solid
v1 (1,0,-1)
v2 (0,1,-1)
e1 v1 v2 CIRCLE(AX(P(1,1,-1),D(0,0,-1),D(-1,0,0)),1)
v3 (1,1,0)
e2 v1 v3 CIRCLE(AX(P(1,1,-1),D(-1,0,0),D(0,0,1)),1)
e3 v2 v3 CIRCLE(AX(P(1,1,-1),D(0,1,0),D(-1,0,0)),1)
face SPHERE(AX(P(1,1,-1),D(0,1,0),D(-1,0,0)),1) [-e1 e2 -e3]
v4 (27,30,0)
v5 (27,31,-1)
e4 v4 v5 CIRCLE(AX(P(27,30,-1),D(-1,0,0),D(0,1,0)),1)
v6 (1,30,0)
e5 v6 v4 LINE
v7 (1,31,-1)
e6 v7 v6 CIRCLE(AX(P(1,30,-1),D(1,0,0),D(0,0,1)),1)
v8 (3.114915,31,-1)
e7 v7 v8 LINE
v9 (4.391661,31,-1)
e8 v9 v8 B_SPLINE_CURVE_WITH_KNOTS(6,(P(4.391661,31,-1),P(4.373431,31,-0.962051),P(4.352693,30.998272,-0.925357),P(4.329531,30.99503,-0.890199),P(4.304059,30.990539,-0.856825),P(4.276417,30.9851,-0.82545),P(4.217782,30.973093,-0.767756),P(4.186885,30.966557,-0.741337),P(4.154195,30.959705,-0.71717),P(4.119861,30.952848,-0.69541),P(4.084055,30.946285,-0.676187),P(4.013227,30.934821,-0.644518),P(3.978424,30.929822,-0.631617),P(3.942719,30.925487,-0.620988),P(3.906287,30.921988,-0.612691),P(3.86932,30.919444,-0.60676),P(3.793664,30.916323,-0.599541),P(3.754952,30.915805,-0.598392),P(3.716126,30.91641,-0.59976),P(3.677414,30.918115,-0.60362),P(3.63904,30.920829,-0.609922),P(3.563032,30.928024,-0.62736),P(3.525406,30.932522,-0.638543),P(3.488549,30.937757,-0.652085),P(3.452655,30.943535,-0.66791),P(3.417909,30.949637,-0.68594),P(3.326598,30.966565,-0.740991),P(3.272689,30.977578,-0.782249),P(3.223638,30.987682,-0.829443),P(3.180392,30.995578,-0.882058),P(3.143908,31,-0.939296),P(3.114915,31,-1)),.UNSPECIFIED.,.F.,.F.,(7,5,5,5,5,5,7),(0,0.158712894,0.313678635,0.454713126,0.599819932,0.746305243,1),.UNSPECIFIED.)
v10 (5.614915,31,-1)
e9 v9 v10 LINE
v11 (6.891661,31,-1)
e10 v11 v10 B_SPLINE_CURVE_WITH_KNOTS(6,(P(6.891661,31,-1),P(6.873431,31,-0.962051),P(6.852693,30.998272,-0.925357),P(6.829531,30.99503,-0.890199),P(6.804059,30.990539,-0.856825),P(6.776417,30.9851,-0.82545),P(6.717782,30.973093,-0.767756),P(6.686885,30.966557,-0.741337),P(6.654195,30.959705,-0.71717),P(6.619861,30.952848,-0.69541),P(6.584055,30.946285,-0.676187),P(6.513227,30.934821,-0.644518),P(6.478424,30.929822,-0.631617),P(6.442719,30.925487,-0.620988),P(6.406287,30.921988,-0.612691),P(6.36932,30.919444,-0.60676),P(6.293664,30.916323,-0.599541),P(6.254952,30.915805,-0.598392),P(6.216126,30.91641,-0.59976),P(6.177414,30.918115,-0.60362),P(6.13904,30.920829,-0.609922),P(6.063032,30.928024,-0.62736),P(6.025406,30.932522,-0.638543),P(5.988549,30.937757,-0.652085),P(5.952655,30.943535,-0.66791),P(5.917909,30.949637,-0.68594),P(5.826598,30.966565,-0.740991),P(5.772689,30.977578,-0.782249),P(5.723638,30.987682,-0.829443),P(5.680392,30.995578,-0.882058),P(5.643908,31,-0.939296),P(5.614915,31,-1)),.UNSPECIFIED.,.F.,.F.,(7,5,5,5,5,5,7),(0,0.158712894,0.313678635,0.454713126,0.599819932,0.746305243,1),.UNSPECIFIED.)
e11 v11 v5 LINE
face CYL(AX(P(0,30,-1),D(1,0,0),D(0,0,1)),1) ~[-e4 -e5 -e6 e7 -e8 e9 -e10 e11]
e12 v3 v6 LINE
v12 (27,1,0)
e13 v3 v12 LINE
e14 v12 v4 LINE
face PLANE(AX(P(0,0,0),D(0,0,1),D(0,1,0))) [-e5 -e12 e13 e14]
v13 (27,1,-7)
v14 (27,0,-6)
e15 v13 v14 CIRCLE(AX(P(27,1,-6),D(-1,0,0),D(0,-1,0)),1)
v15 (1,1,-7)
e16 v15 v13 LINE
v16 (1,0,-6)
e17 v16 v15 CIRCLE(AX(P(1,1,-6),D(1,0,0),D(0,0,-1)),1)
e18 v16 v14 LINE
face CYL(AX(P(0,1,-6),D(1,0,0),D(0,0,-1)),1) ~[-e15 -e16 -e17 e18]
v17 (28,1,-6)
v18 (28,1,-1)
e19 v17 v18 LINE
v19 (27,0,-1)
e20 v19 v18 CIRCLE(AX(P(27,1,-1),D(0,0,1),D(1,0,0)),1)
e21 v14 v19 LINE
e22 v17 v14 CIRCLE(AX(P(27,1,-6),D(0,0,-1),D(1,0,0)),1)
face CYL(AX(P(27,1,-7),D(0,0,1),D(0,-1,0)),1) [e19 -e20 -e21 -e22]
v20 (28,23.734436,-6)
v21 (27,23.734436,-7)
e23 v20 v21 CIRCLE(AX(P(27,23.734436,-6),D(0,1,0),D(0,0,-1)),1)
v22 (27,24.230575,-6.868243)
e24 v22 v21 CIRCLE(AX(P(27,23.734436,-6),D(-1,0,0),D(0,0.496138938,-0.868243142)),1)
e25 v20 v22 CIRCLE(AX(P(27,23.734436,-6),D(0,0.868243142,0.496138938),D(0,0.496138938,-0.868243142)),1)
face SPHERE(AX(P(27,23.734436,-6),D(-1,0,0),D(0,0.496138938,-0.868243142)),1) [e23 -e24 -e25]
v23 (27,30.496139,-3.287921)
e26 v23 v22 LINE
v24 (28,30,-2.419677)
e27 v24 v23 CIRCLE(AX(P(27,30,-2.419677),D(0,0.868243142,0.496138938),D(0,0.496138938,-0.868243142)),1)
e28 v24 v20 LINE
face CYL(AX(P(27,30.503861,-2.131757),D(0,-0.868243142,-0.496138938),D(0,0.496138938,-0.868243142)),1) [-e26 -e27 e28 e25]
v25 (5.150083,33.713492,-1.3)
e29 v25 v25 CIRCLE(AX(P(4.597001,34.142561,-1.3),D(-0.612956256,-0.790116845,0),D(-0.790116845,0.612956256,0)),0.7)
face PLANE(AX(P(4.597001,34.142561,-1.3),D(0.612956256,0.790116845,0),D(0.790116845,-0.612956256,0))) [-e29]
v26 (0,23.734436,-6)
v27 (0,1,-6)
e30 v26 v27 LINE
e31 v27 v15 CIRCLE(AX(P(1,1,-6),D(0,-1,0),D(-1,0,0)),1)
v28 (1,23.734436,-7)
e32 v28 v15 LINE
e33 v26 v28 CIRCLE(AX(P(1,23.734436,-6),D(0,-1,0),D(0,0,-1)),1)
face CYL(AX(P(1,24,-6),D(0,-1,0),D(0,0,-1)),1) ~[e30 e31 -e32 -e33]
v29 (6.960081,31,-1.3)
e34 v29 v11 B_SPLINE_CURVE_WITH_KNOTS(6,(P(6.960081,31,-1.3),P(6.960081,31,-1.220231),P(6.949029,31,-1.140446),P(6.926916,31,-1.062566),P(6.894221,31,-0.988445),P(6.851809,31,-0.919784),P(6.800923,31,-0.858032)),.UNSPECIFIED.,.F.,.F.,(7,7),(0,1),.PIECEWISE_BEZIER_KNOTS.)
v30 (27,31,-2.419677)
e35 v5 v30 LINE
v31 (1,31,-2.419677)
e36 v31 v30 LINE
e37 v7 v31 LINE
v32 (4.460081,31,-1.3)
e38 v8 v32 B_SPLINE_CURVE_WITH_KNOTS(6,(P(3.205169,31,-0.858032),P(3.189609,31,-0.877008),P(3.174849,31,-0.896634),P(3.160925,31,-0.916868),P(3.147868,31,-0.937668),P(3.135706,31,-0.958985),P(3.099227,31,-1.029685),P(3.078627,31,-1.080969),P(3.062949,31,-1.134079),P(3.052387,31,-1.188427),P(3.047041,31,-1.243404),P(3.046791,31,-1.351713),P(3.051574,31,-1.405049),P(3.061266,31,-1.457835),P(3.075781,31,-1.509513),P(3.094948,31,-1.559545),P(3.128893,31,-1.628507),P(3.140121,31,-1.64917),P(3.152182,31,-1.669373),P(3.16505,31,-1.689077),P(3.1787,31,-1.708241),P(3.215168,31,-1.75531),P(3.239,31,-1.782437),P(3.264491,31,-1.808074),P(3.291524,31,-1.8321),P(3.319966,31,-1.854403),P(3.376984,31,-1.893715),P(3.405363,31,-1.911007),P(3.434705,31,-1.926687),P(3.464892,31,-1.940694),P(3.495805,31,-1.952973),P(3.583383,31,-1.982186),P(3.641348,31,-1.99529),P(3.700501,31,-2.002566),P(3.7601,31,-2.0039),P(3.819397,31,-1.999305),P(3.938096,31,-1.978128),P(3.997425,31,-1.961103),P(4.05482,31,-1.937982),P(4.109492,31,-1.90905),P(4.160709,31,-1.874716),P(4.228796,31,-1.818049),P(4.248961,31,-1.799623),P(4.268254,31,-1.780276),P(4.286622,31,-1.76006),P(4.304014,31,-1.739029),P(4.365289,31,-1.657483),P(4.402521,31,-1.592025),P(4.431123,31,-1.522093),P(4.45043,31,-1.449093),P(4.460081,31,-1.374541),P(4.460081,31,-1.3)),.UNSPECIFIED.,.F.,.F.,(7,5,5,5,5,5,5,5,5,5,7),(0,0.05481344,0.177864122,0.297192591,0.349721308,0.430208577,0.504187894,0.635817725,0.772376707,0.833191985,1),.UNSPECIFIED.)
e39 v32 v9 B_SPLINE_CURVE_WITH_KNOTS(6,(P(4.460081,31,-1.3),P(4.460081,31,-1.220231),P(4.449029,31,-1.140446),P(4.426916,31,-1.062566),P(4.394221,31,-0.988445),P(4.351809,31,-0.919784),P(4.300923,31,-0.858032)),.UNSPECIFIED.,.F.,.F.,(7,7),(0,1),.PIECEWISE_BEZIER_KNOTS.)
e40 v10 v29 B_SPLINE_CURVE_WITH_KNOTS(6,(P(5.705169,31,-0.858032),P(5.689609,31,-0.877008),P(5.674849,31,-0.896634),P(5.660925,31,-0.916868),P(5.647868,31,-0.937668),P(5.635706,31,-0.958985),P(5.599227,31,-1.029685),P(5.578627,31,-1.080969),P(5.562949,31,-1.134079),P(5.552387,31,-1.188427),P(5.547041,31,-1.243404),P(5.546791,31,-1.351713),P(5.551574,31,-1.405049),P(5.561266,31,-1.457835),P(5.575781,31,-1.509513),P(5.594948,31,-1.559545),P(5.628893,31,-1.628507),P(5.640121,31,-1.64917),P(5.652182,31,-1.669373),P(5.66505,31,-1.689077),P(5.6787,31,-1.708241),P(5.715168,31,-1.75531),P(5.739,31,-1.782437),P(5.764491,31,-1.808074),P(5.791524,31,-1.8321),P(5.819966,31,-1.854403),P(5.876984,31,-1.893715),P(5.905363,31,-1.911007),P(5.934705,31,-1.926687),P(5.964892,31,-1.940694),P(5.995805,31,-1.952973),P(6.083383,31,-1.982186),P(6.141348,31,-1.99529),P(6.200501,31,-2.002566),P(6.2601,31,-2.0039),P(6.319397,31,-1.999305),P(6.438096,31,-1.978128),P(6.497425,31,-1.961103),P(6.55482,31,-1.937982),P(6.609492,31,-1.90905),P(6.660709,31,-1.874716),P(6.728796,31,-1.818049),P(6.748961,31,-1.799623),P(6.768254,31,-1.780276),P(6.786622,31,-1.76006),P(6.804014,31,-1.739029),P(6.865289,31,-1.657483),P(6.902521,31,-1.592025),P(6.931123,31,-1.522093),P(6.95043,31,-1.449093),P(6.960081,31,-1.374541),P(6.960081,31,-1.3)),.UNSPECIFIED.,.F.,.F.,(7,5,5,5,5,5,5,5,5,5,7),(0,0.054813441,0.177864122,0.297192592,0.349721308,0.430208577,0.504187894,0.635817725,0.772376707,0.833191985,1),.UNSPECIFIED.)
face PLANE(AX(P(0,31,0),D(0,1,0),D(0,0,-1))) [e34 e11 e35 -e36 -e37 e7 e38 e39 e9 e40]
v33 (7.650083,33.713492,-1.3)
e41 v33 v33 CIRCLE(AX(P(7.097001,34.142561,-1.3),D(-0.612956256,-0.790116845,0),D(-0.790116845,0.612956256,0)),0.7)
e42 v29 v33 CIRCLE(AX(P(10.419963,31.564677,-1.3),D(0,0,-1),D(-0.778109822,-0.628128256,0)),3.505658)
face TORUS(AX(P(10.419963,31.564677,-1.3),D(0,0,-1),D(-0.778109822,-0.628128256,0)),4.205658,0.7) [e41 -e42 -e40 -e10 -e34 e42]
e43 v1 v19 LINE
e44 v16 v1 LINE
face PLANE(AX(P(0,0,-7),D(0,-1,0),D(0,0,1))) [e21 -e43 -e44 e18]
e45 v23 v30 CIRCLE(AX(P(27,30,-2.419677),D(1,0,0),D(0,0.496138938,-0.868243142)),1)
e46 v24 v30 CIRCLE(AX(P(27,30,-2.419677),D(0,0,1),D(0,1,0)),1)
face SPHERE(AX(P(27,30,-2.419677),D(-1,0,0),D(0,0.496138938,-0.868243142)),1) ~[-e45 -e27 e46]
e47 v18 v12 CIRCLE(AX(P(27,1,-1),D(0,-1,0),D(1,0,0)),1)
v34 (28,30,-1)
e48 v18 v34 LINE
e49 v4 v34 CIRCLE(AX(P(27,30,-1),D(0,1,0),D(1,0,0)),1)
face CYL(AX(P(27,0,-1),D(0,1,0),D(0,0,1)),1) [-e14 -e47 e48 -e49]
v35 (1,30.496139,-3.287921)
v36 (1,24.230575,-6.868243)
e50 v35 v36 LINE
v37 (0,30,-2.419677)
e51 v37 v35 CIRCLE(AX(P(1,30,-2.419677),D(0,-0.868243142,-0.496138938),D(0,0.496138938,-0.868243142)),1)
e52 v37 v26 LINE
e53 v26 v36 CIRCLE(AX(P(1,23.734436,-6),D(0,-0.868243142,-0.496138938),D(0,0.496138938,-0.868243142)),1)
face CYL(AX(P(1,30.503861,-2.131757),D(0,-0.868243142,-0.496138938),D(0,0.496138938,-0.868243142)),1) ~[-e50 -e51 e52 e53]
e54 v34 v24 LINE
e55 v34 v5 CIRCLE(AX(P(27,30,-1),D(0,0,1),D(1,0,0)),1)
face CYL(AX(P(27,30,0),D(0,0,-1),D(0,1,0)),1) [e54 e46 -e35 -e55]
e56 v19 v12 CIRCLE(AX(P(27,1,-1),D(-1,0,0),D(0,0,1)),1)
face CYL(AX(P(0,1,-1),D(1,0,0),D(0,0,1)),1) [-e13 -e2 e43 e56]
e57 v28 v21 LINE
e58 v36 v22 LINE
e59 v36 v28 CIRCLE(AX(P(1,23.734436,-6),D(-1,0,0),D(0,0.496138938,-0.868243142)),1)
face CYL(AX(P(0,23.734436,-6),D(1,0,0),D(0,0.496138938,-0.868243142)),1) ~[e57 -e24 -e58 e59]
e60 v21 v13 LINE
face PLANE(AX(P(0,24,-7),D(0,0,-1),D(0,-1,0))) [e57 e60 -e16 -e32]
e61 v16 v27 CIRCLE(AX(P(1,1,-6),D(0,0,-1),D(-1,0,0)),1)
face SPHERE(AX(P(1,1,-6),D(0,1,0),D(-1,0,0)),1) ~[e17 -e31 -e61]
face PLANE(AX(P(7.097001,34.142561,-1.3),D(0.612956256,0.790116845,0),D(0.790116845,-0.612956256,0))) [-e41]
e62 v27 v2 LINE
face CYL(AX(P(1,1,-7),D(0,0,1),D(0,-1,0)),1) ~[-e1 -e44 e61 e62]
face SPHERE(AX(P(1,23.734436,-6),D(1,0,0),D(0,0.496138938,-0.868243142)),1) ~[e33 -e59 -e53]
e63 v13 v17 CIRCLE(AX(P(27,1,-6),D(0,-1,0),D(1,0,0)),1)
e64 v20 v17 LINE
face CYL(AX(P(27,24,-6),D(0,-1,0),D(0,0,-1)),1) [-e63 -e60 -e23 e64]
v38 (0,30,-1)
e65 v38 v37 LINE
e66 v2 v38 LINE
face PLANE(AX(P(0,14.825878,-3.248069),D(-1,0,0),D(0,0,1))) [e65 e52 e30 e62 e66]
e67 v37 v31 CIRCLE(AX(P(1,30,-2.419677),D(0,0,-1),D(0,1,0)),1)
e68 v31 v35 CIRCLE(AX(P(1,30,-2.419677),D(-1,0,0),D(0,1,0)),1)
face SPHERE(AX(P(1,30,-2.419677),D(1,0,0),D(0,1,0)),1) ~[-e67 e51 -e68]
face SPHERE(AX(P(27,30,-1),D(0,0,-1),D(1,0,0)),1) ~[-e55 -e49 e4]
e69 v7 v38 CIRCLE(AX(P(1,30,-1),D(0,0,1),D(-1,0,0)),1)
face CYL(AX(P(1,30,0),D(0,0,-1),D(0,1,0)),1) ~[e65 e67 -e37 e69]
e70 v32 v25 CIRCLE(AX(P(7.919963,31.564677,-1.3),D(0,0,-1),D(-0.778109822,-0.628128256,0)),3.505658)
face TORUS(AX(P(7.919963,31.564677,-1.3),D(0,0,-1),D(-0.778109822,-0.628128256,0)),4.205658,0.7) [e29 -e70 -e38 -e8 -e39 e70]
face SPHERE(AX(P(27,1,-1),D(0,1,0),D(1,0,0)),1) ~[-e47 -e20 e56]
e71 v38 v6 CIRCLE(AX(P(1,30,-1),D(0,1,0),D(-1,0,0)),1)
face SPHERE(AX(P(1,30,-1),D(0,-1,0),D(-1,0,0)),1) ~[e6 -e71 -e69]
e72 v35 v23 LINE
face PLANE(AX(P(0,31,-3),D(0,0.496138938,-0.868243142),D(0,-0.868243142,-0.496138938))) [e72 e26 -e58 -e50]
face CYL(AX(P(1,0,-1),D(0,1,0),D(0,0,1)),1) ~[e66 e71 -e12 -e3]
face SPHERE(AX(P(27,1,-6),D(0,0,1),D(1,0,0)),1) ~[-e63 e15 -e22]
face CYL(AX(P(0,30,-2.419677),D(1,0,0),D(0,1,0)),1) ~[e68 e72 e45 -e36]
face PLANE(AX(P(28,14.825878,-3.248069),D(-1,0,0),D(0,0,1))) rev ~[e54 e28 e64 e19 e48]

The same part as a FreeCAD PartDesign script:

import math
import FreeCAD as App
import Part
import Sketcher
from FreeCAD import Vector
Q = App.Units.Quantity


def add_polygon(sketch, points):
    """Adds a closed chain of lines whose ends are joined by coincident constraints."""
    first, n = sketch.GeometryCount, len(points)
    for a, b in zip(points, points[1:] + points[:1]):
        sketch.addGeometry(Part.LineSegment(App.Vector(*a, 0), App.Vector(*b, 0)), False)
    for i in range(n):
        sketch.addConstraint(Sketcher.Constraint("Coincident", first + i, 2, first + (i + 1) % n, 1))

doc = App.newDocument("Part")
body = doc.addObject("PartDesign::Body", "Body")

# Sketch on YZ plane
sketch1 = body.newObject("Sketcher::SketchObject", "Sketch")
sketch1.AttachmentSupport = (doc.getObject("YZ_Plane"), [""])
sketch1.MapMode = "FlatFace"
add_polygon(sketch1, [(31, 0), (0, 0), (0, -7), (24, -7), (31, -3)])  # lines 0-4
sketch1.addConstraint(Sketcher.Constraint("Horizontal", 0))
sketch1.addConstraint(Sketcher.Constraint("Vertical", 1))
sketch1.addConstraint(Sketcher.Constraint("Horizontal", 2))
sketch1.addConstraint(Sketcher.Constraint("Vertical", 4))
sketch1.addConstraint(Sketcher.Constraint("Coincident", 0, 2, -1, 1))
sketch1.addConstraint(Sketcher.Constraint("DistanceX", 0, 2, 0, 1, Q("31 mm")))
sketch1.addConstraint(Sketcher.Constraint("DistanceX", 2, 1, 2, 2, Q("24 mm")))
sketch1.addConstraint(Sketcher.Constraint("DistanceY", 1, 2, 1, 1, Q("7 mm")))
sketch1.addConstraint(Sketcher.Constraint("DistanceY", 4, 1, 4, 2, Q("3 mm")))
pad1 = body.newObject("PartDesign::Pad", "Pad")
pad1.Profile = sketch1
pad1.Length = 28
doc.recompute()

fillet = body.newObject("PartDesign::Fillet", "Fillet")
fillet.Base = (pad1, ["Edge1"])
fillet.UseAllEdges = True
fillet.Radius = 1

# Sketch on an angled plane
sketch2 = body.newObject("Sketcher::SketchObject", "Sketch001")
sketch2.Placement = App.Placement(Vector(4.647499, 28.922984, -1.3), App.Rotation(Vector(0.778109821, 0.628128256, 0), Vector(0, 0, -1), Vector(-0.628128256, 0.778109821, 0), "ZXY"))
sketch2.addGeometry(Part.Circle(Vector(0, 0, 0), Vector(0, 0, 1), 0.7), False)
sketch2.addConstraint(Sketcher.Constraint("Coincident", 0, 3, -1, 1))
sketch2.addConstraint(Sketcher.Constraint("Diameter", 0, Q("1.4 mm")))

# Sketch on XY plane
sketch3 = body.newObject("Sketcher::SketchObject", "Sketch002")
sketch3.AttachmentSupport = (doc.getObject("XY_Plane"), [""])
sketch3.MapMode = "FlatFace"
sketch3.AttachmentOffset = App.Placement(Vector(0, 0, -1.3), App.Rotation())
sketch3.addGeometry(Part.ArcOfCircle(Part.Circle(Vector(7.9, 31.6, 0), Vector(0, 0, 1), 4.2), math.radians(142), math.radians(219)), False)
sketch3.addConstraint(Sketcher.Constraint("DistanceX", -1, 1, 0, 1, Q("4.597001 mm")))
sketch3.addConstraint(Sketcher.Constraint("Radius", 0, Q("4.205658 mm")))
sketch3.addConstraint(Sketcher.Constraint("DistanceX", -1, 1, 0, 2, Q("4.647499 mm")))
sketch3.addConstraint(Sketcher.Constraint("DistanceY", -1, 1, 0, 1, Q("34.142561 mm")))
sketch3.addConstraint(Sketcher.Constraint("DistanceX", 0, 1, 0, 3, Q("3.322961 mm")))
doc.recompute()

additivepipe = body.newObject("PartDesign::AdditivePipe", "AdditivePipe")
additivepipe.Profile = sketch2
additivepipe.Spine = (sketch3, ["Edge1"])
doc.recompute()

linearpattern = body.newObject("PartDesign::LinearPattern", "LinearPattern")
linearpattern.Originals = [additivepipe]
linearpattern.Direction = (doc.getObject("X_Axis"), [""])
linearpattern.Mode = "offset"
linearpattern.Offset = 2.5
linearpattern.Occurrences = 2
body.Tip = linearpattern

doc.recompute()
